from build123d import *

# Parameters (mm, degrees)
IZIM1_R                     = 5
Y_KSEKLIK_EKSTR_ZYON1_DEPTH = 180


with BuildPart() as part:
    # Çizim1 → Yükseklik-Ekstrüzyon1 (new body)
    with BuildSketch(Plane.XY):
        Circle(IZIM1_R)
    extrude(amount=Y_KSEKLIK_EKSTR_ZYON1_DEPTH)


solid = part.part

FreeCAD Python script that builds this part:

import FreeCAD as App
import Part
import Sketcher
from FreeCAD import Vector

doc = App.newDocument("Part")
body = doc.addObject("PartDesign::Body", "Body")

# Sketch on XY plane
sketch1 = body.newObject("Sketcher::SketchObject", "Sketch")
sketch1.AttachmentSupport = (doc.getObject("XY_Plane"), [""])
sketch1.MapMode = "FlatFace"
sketch1.addGeometry(Part.Circle(Vector(0, 0, 0), Vector(0, 0, 1), 5), False)
sketch1.addConstraint([
    Sketcher.Constraint("Coincident", 0, 3, -1, 1),
    Sketcher.Constraint("Diameter", 0, 10.0),
])
pad1 = body.newObject("PartDesign::Pad", "Pad")
pad1.Profile = sketch1
pad1.Length = 180

doc.recompute()
